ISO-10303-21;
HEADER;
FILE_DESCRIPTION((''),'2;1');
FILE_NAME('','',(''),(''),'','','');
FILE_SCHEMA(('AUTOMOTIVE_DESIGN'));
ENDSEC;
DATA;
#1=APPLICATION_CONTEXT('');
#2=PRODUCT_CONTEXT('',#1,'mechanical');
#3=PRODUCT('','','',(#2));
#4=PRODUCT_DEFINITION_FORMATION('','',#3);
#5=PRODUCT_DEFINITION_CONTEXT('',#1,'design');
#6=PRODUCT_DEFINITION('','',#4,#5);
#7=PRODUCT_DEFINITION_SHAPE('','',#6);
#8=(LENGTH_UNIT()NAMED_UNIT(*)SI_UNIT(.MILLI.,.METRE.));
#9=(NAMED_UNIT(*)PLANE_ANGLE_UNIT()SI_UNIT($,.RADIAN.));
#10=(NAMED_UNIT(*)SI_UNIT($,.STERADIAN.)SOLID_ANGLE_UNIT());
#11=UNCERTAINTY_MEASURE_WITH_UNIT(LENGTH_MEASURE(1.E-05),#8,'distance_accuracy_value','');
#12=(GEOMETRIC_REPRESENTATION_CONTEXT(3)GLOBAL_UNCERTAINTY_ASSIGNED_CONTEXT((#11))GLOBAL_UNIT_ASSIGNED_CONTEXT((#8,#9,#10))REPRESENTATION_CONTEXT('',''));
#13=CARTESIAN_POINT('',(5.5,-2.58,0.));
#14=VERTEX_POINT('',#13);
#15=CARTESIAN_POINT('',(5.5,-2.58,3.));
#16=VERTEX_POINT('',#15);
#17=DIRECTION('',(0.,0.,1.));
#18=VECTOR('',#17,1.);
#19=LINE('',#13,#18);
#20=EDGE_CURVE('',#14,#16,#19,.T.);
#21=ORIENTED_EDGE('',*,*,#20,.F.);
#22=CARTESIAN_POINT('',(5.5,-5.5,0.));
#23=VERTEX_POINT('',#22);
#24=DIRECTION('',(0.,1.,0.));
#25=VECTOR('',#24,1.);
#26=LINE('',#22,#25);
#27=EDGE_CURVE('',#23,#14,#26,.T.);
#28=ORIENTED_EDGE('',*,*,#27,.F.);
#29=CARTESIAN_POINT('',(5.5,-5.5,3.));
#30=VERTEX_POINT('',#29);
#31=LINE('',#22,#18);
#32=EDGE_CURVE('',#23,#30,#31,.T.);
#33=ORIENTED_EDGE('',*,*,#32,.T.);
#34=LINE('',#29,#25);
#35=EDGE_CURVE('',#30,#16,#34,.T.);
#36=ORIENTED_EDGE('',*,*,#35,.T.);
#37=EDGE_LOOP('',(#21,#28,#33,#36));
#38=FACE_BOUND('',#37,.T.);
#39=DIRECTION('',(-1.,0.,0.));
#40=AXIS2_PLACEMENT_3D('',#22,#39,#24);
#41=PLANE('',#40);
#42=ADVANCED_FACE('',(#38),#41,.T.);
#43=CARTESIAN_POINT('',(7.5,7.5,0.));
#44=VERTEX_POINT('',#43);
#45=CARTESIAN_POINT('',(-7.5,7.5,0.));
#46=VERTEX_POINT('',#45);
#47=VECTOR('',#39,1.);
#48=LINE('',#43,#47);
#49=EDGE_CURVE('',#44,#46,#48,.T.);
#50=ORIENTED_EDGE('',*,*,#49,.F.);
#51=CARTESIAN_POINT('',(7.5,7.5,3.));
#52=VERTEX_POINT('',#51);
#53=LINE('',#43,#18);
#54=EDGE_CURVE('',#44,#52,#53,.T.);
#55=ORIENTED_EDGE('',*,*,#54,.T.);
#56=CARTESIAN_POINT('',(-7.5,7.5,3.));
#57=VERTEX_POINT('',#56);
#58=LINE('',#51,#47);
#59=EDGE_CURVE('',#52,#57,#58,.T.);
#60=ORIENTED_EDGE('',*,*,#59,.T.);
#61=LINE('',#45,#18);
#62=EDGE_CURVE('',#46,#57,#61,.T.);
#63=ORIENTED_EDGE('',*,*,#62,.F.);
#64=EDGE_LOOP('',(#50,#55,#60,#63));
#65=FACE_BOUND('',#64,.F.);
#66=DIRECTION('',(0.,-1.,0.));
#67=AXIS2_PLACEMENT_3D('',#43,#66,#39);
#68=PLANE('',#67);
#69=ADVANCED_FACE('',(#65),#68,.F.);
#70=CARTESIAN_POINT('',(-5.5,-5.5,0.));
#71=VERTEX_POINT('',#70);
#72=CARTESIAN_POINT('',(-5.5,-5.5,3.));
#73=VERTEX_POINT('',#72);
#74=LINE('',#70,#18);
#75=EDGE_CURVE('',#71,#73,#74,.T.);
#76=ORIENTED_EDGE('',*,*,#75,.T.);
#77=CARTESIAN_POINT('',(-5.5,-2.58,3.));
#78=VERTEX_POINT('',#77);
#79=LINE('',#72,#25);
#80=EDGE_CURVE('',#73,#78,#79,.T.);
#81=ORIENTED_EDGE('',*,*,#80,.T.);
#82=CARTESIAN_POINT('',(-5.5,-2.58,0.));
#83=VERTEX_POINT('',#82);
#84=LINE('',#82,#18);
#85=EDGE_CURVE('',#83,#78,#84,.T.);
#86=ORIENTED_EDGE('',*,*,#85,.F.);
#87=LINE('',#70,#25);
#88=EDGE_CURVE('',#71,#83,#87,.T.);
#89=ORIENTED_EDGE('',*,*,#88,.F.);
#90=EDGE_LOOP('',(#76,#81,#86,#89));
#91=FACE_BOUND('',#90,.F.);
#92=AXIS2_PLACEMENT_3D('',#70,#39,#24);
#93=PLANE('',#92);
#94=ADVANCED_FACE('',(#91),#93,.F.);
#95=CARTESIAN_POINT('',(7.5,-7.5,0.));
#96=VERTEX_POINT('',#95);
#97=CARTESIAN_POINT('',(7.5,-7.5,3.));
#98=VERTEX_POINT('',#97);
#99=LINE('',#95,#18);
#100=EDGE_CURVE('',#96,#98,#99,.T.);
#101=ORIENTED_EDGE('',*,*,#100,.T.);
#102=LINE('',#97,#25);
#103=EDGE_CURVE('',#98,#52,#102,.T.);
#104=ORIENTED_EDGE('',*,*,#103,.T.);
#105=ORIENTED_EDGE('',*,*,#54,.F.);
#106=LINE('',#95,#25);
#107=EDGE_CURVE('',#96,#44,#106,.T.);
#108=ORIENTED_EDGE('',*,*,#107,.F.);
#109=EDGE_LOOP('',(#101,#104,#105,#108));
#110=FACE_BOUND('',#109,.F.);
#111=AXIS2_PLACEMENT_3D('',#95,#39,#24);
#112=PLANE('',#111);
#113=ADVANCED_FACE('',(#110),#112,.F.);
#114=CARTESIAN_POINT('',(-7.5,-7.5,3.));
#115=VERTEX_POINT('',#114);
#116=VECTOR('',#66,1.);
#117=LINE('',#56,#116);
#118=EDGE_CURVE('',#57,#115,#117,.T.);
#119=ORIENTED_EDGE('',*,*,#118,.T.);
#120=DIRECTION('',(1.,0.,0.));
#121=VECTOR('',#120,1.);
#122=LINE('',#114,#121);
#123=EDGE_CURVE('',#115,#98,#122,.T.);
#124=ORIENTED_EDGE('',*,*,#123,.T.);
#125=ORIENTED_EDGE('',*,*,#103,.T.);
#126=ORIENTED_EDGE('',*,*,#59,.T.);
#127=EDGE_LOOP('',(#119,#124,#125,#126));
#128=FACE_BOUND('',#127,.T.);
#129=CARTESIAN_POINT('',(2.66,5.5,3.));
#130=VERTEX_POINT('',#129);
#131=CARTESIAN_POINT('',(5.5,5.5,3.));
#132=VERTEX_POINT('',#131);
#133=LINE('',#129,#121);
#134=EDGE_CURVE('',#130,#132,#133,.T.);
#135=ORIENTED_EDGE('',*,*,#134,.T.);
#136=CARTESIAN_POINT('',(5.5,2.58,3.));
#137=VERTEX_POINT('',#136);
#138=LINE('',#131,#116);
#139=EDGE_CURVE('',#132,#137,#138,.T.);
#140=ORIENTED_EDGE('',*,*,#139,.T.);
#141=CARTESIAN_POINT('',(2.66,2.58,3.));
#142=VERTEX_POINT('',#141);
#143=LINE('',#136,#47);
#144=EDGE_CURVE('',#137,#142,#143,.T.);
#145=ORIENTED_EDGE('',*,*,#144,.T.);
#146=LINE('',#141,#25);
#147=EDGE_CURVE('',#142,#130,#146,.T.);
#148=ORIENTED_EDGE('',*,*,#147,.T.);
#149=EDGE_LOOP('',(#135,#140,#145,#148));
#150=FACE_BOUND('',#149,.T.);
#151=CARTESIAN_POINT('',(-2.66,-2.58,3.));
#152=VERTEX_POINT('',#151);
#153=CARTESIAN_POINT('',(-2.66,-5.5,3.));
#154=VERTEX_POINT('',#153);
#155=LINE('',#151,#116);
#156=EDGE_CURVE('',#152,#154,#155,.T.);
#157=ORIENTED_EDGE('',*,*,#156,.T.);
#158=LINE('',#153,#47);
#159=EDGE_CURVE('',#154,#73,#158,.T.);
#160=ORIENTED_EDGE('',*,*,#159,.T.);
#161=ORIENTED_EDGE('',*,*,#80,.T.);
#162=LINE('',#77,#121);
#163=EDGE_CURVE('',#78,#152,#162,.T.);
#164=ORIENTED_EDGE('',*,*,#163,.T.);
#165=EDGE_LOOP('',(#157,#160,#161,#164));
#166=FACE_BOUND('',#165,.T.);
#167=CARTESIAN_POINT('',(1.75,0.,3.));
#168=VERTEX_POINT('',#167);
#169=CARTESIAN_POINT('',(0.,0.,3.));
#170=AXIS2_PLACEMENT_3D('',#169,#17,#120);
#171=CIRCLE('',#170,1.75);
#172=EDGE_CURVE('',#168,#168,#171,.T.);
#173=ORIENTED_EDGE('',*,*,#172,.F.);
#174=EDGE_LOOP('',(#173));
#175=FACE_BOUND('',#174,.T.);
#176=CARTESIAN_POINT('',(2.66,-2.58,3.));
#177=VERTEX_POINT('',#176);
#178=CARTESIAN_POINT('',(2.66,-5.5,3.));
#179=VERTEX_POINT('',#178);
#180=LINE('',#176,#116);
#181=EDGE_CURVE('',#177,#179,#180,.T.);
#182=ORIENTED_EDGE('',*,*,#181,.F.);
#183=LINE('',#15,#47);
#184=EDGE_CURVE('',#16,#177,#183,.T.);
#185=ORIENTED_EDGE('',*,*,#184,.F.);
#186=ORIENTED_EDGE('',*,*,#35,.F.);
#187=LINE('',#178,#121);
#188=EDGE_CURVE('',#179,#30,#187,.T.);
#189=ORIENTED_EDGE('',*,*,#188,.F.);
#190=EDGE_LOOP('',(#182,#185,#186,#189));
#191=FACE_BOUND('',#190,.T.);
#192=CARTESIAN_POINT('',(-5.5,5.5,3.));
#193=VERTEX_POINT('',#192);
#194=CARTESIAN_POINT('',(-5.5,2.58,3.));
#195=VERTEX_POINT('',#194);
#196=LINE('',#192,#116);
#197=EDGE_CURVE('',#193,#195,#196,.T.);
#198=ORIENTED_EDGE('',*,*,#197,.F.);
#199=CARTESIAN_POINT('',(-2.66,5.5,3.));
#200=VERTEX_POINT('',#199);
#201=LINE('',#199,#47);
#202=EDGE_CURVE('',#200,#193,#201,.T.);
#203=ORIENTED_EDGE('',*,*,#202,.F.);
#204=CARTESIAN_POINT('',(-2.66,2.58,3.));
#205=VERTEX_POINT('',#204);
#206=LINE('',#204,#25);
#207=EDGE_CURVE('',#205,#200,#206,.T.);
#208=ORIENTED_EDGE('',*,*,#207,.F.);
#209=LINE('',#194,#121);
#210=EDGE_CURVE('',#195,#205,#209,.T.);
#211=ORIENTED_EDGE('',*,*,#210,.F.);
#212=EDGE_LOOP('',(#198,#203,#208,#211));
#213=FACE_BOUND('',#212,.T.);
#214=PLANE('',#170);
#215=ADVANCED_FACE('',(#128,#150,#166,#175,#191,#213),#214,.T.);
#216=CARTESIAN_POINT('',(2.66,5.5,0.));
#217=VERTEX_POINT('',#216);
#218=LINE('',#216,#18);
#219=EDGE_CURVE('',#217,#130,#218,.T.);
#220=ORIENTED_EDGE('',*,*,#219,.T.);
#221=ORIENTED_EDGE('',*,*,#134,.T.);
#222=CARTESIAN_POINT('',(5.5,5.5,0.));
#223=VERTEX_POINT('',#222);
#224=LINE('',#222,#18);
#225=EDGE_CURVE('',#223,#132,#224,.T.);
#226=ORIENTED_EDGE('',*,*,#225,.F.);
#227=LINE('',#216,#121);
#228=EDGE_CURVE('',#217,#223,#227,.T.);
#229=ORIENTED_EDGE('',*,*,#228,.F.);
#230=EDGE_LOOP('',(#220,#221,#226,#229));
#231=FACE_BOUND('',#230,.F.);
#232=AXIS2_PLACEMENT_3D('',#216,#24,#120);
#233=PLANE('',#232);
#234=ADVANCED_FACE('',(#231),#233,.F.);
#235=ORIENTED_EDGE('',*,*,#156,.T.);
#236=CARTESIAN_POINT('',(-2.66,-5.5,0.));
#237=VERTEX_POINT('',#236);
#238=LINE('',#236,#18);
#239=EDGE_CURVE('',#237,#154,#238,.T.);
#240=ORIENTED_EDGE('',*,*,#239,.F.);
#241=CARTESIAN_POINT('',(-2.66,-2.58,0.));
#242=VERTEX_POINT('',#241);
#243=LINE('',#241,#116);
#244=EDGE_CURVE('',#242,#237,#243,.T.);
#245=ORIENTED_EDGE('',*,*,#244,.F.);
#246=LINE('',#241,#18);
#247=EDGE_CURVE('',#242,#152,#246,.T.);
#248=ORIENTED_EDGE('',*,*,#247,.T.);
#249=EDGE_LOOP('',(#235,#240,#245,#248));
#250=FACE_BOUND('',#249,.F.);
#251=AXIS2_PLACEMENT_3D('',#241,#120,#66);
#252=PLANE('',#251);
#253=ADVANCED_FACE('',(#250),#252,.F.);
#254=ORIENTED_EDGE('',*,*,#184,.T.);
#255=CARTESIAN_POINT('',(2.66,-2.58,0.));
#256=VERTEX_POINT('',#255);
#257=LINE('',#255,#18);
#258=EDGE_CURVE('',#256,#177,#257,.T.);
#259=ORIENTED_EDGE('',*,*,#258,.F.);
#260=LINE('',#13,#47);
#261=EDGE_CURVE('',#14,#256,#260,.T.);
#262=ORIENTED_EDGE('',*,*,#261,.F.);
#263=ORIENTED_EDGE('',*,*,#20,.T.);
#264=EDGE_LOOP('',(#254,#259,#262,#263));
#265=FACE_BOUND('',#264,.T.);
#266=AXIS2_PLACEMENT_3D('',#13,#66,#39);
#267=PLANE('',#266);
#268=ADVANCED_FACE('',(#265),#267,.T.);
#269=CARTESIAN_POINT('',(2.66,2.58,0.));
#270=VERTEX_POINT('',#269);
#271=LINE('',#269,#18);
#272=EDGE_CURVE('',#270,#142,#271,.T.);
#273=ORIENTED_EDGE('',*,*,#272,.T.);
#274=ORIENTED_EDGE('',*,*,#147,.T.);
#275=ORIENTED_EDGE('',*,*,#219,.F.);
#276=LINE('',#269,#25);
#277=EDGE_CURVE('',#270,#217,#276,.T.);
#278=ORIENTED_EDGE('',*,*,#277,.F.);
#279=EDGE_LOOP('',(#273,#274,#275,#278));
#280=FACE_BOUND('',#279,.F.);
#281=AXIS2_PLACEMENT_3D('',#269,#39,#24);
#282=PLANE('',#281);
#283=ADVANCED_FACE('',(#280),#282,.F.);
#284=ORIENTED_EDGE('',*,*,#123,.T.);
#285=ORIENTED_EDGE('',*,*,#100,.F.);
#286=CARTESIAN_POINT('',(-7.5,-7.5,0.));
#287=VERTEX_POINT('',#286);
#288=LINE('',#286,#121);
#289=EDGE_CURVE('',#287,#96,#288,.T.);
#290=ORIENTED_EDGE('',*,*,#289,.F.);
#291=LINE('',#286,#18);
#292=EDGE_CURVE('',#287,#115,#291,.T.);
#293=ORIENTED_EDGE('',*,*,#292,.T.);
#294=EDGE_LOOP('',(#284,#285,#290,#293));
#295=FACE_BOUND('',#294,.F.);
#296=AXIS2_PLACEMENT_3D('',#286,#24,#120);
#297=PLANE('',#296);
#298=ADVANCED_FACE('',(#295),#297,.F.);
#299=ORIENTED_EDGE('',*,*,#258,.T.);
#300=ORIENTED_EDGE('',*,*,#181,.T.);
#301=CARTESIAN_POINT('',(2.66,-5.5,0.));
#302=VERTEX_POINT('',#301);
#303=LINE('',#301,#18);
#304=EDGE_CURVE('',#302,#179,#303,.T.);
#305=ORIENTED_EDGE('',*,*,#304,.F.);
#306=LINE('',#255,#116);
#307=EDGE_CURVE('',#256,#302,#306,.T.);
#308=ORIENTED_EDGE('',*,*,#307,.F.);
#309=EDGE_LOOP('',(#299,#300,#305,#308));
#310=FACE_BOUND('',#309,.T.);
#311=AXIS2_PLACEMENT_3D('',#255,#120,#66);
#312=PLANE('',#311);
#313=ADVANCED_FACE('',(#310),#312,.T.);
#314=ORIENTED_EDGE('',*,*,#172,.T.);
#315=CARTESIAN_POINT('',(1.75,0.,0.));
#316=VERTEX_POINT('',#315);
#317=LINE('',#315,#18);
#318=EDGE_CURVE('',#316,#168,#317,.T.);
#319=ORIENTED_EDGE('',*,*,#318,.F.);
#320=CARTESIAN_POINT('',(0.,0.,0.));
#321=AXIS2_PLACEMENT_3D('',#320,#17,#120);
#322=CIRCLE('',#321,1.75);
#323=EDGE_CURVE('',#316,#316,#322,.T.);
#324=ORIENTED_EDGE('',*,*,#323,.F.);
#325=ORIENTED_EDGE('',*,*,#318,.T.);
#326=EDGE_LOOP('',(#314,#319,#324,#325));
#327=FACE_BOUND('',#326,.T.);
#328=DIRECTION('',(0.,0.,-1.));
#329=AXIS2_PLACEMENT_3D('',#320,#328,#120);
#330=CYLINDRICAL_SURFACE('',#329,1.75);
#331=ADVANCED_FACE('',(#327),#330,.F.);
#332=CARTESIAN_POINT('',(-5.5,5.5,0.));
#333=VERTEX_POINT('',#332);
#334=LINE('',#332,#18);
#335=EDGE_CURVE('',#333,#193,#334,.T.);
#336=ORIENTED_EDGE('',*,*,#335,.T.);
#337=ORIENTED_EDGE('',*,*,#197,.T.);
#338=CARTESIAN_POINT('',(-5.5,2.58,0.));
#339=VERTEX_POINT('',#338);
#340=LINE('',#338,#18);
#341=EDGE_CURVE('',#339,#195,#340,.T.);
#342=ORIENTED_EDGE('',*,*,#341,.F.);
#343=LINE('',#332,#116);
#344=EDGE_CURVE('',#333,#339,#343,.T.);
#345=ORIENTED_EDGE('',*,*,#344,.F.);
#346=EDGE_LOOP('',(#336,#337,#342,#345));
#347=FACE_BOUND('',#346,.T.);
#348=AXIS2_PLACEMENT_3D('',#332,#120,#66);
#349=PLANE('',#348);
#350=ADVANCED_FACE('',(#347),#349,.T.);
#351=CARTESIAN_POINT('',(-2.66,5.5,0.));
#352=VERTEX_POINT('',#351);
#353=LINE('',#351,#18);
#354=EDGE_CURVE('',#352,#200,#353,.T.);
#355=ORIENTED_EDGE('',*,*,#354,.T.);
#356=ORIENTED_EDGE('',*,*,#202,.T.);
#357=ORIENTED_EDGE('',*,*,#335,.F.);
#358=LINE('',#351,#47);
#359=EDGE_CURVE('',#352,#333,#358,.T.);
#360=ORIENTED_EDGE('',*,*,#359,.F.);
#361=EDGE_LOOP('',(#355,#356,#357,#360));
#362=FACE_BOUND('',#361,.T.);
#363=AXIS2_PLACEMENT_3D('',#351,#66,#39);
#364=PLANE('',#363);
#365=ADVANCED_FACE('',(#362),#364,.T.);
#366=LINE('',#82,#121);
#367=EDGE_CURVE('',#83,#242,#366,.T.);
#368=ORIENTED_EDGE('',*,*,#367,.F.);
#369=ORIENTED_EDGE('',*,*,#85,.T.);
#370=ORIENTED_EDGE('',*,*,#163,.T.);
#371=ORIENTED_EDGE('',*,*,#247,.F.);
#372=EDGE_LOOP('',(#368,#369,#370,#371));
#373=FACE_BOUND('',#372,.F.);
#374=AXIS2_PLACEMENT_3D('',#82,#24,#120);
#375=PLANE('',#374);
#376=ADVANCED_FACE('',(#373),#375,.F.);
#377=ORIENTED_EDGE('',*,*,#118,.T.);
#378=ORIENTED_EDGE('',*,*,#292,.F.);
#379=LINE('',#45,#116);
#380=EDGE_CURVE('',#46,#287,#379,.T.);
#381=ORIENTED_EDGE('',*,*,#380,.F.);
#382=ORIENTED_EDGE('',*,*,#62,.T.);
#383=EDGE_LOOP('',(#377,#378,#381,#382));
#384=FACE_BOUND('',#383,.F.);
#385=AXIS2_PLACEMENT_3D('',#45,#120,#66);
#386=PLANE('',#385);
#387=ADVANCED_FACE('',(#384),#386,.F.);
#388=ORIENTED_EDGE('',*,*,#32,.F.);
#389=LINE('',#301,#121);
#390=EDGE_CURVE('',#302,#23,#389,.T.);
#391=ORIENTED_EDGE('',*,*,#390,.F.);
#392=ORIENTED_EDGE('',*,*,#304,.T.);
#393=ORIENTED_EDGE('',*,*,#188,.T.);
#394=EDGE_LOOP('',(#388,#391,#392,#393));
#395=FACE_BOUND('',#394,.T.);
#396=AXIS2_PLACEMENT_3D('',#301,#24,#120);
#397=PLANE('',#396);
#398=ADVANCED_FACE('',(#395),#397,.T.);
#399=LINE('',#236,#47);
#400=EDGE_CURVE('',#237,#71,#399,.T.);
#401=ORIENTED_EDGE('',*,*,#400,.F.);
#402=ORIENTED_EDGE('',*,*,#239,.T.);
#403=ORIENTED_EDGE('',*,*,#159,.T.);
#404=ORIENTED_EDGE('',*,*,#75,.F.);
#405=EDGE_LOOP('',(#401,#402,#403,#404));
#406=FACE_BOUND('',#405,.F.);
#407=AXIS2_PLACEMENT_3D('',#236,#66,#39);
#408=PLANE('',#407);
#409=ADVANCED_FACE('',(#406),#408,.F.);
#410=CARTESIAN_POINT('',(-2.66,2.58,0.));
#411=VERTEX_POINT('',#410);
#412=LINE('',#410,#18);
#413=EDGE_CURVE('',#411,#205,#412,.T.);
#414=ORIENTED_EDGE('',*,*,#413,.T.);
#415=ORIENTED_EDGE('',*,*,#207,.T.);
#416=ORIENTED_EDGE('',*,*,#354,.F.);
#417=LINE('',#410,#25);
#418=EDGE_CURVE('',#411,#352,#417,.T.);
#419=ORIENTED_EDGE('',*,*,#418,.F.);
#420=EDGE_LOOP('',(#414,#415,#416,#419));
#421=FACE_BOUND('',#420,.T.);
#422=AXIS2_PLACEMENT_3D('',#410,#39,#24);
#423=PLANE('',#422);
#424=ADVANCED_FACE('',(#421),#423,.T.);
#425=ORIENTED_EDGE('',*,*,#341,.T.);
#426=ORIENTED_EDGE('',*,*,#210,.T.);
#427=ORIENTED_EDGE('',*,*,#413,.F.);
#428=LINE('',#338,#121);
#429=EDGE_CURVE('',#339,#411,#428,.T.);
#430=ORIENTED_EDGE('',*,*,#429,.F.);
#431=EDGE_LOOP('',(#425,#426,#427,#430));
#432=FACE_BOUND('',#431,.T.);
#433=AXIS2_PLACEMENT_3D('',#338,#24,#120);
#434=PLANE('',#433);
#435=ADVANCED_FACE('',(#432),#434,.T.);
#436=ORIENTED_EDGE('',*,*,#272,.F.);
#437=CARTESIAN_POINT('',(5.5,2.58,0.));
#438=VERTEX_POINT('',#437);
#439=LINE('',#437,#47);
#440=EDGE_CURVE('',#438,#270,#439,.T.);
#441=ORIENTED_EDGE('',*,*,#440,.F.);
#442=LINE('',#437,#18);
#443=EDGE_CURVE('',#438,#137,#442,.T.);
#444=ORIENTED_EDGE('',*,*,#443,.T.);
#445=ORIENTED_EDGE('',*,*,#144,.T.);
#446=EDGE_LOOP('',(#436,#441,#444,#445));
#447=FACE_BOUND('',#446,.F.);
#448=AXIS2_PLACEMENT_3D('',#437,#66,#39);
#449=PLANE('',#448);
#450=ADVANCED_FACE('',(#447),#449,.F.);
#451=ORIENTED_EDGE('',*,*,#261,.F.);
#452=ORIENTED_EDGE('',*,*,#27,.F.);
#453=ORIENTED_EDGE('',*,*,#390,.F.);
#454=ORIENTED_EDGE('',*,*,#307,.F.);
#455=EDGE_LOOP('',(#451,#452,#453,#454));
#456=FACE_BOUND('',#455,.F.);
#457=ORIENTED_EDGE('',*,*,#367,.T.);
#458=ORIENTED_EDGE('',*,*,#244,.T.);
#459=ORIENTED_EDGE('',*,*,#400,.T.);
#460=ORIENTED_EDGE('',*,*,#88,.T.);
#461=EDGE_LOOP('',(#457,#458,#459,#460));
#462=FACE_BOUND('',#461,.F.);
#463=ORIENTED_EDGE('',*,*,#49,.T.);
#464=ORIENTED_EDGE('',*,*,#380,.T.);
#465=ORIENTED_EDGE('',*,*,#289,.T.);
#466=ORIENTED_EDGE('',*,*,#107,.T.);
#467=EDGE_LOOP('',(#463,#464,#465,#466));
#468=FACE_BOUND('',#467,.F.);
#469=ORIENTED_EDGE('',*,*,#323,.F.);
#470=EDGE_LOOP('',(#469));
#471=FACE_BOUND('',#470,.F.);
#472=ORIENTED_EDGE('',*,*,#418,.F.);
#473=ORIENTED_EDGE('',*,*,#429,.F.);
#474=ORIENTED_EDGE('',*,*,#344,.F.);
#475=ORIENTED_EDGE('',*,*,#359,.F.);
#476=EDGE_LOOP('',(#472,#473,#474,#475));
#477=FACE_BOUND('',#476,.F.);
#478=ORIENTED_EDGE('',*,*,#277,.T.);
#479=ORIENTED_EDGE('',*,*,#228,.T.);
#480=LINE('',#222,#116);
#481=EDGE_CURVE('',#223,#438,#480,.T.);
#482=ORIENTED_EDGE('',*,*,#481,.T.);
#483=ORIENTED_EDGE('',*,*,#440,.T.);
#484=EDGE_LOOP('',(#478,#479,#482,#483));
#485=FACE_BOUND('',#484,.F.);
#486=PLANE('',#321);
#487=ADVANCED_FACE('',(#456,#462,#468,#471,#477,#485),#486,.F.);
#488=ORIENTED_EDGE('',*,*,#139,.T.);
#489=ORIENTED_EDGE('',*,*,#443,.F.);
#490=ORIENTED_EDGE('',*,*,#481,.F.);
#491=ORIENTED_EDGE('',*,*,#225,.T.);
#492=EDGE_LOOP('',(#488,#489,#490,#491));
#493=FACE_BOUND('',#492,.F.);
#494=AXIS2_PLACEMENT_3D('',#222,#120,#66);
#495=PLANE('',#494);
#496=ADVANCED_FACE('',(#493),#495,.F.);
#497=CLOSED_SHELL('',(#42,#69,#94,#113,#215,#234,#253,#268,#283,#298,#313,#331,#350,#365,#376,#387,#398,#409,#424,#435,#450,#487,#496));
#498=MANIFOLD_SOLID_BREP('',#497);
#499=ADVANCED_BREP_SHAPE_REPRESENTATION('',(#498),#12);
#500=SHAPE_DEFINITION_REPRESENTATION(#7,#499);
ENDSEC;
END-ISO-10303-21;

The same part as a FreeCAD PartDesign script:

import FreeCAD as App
import Part
import Sketcher


def add_polygon(sketch, points):
    """Adds a closed chain of lines whose ends are joined by coincident constraints."""
    first, n = sketch.GeometryCount, len(points)
    for a, b in zip(points, points[1:] + points[:1]):
        sketch.addGeometry(Part.LineSegment(App.Vector(*a, 0), App.Vector(*b, 0)), False)
    for i in range(n):
        sketch.addConstraint(Sketcher.Constraint("Coincident", first + i, 2, first + (i + 1) % n, 1))

doc = App.newDocument("Part")
body = doc.addObject("PartDesign::Body", "Body")

# Sketch on XY plane
sketch1 = body.newObject("Sketcher::SketchObject", "Sketch")
sketch1.AttachmentSupport = (doc.getObject("XY_Plane"), [""])
sketch1.MapMode = "FlatFace"
add_polygon(sketch1, [(-7.5, 7.5), (-7.5, -7.5), (7.5, -7.5), (7.5, 7.5)])  # lines 0-3
add_polygon(sketch1, [(-5.5, -5.5), (-5.5, -2.6), (-2.7, -2.6), (-2.7, -5.5)])  # lines 4-7
add_polygon(sketch1, [(2.7, -5.5), (2.7, -2.6), (5.5, -2.6), (5.5, -5.5)])  # lines 8-11
add_polygon(sketch1, [(-2.7, 2.6), (-5.5, 2.6), (-5.5, 5.5), (-2.7, 5.5)])  # lines 12-15
sketch1.addGeometry(Part.Circle(App.Vector(0, 0, 0), App.Vector(0, 0, 1), 1.8), False)  # 16
add_polygon(sketch1, [(5.5, 2.6), (2.7, 2.6), (2.7, 5.5), (5.5, 5.5)])  # lines 17-20
sketch1.addConstraint(Sketcher.Constraint("Vertical", 0))
sketch1.addConstraint(Sketcher.Constraint("Horizontal", 1))
sketch1.addConstraint(Sketcher.Constraint("Vertical", 2))
sketch1.addConstraint(Sketcher.Constraint("Horizontal", 3))
sketch1.addConstraint(Sketcher.Constraint("Vertical", 4))
sketch1.addConstraint(Sketcher.Constraint("Horizontal", 5))
sketch1.addConstraint(Sketcher.Constraint("Vertical", 6))
sketch1.addConstraint(Sketcher.Constraint("Horizontal", 7))
sketch1.addConstraint(Sketcher.Constraint("Vertical", 8))
sketch1.addConstraint(Sketcher.Constraint("Horizontal", 9))
sketch1.addConstraint(Sketcher.Constraint("Vertical", 10))
sketch1.addConstraint(Sketcher.Constraint("Horizontal", 11))
sketch1.addConstraint(Sketcher.Constraint("Horizontal", 12))
sketch1.addConstraint(Sketcher.Constraint("Vertical", 13))
sketch1.addConstraint(Sketcher.Constraint("Horizontal", 14))
sketch1.addConstraint(Sketcher.Constraint("Vertical", 15))
sketch1.addConstraint(Sketcher.Constraint("Horizontal", 17))
sketch1.addConstraint(Sketcher.Constraint("Vertical", 18))
sketch1.addConstraint(Sketcher.Constraint("Horizontal", 19))
sketch1.addConstraint(Sketcher.Constraint("Vertical", 20))
sketch1.addConstraint(Sketcher.Constraint("Coincident", 16, 3, -1, 1))
sketch1.addConstraint(Sketcher.Constraint("Symmetric", 0, 2, 2, 2, -1, 1))
sketch1.addConstraint(Sketcher.Constraint("Symmetric", 9, 2, 12, 2, -1, 1))
sketch1.addConstraint(Sketcher.Constraint("Symmetric", 11, 2, 14, 2, -1, 1))
sketch1.addConstraint(Sketcher.Constraint("Symmetric", 5, 2, 17, 2, -1, 1))
sketch1.addConstraint(Sketcher.Constraint("Symmetric", 7, 2, 19, 2, -1, 1))
sketch1.addConstraint(Sketcher.Constraint("Symmetric", 5, 2, 8, 2, -2))
sketch1.addConstraint(Sketcher.Constraint("Symmetric", 7, 2, 10, 2, -2))
sketch1.addConstraint(Sketcher.Constraint("Equal", 3, 0))
sketch1.addConstraint(Sketcher.Constraint("Diameter", 16, 3.5))
sketch1.addConstraint(Sketcher.Constraint("DistanceX", 1, 1, 1, 2, 15.0))
sketch1.addConstraint(Sketcher.Constraint("DistanceX", 0, 2, 4, 2, 2.0))
sketch1.addConstraint(Sketcher.Constraint("DistanceY", 0, 2, 6, 2, 2.0))
sketch1.addConstraint(Sketcher.Constraint("DistanceX", 5, 1, 5, 2, 2.84))
sketch1.addConstraint(Sketcher.Constraint("DistanceY", 4, 1, 4, 2, 2.92))
pad1 = body.newObject("PartDesign::Pad", "Pad")
pad1.Profile = sketch1
pad1.Length = 3

doc.recompute()
